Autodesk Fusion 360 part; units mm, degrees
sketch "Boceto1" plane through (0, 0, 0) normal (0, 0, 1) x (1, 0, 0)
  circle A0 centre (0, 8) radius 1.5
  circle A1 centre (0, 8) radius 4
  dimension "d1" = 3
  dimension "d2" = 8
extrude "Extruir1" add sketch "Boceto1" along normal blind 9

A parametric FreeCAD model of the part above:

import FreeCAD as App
import Part
import Sketcher
from FreeCAD import Vector

doc = App.newDocument("Part")
body = doc.addObject("PartDesign::Body", "Body")

# Sketch on XY plane
sketch1 = body.newObject("Sketcher::SketchObject", "Sketch")
sketch1.AttachmentSupport = (doc.getObject("XY_Plane"), [""])
sketch1.MapMode = "FlatFace"
sketch1.addGeometry([
    Part.Circle(Vector(0, 8, 0), Vector(0, 0, 1), 4),
    Part.Circle(Vector(0, 8, 0), Vector(0, 0, 1), 1.5),
], False)
sketch1.addConstraint([
    Sketcher.Constraint("Coincident", 1, 3, 0, 3),
    Sketcher.Constraint("PointOnObject", 0, 3, -2),
    Sketcher.Constraint("Diameter", 0, 8.0),
    Sketcher.Constraint("Diameter", 1, 3.0),
    Sketcher.Constraint("DistanceY", -1, 1, 0, 3, 8.0),
])
pad1 = body.newObject("PartDesign::Pad", "Pad")
pad1.Profile = sketch1
pad1.Length = 9

doc.recompute()
